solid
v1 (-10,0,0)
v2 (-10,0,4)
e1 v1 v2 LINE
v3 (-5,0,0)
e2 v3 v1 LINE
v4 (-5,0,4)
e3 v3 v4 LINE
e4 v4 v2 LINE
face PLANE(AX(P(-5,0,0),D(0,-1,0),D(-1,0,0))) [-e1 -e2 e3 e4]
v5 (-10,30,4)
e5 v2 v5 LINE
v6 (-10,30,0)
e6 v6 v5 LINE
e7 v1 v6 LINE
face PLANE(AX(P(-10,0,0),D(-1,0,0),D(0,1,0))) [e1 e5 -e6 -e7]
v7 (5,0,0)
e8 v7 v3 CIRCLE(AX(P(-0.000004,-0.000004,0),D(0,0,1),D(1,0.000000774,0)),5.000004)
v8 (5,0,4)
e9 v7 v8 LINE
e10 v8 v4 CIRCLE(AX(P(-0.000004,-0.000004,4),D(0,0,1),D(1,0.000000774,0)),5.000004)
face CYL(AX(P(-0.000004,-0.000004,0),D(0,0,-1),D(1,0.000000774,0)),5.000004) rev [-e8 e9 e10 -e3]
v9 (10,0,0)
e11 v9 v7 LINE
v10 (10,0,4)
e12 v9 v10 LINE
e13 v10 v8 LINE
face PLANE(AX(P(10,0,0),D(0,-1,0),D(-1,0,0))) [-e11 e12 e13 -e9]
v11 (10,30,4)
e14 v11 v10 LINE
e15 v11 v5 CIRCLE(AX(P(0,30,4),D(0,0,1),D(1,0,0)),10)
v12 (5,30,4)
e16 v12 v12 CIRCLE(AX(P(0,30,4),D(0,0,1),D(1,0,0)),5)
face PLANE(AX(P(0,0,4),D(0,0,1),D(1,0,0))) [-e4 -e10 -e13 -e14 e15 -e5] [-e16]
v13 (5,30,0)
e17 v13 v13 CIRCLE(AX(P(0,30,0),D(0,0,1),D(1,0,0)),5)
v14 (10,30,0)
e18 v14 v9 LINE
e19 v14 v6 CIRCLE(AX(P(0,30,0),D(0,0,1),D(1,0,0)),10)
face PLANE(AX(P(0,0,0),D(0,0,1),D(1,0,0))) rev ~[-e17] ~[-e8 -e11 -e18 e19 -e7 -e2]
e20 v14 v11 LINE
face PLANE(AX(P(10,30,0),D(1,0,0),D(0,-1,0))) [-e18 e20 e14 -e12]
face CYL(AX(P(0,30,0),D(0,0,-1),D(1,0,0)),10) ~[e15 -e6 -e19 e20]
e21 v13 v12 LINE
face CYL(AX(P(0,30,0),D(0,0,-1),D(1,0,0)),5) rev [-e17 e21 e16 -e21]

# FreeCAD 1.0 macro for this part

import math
import FreeCAD as App
import Part
import Sketcher
from FreeCAD import Vector
Q = App.Units.Quantity

doc = App.newDocument("Part")
body = doc.addObject("PartDesign::Body", "Body")

# Sketch on XY plane
sketch1 = body.newObject("Sketcher::SketchObject", "Sketch")
sketch1.AttachmentSupport = (doc.getObject("XY_Plane"), [""])
sketch1.MapMode = "FlatFace"
sketch1.addGeometry(Part.LineSegment(Vector(-10, 0, 0), Vector(-5, 0, 0)), False)
sketch1.addGeometry(Part.ArcOfCircle(Part.Circle(Vector(0, 0, 0), Vector(0, 0, 1), 5), math.radians(0), math.radians(180)), False)
sketch1.addGeometry(Part.LineSegment(Vector(5, 0, 0), Vector(10, 0, 0)), False)
sketch1.addGeometry(Part.LineSegment(Vector(10, 0, 0), Vector(10, 30, 0)), False)
sketch1.addGeometry(Part.ArcOfCircle(Part.Circle(Vector(0, 30, 0), Vector(0, 0, 1), 10), math.radians(0), math.radians(180)), False)
sketch1.addGeometry(Part.LineSegment(Vector(-10, 30, 0), Vector(-10, 0, 0)), False)
sketch1.addGeometry(Part.Circle(Vector(0, 30, 0), Vector(0, 0, 1), 5), False)
sketch1.addConstraint(Sketcher.Constraint("Coincident", 0, 2, 1, 2))
sketch1.addConstraint(Sketcher.Constraint("Coincident", 1, 1, 2, 1))
sketch1.addConstraint(Sketcher.Constraint("Coincident", 2, 2, 3, 1))
sketch1.addConstraint(Sketcher.Constraint("Tangent", 3, 2, 4, 1))
sketch1.addConstraint(Sketcher.Constraint("Tangent", 4, 2, 5, 1))
sketch1.addConstraint(Sketcher.Constraint("Coincident", 5, 2, 0, 1))
sketch1.addConstraint(Sketcher.Constraint("Horizontal", 0))
sketch1.addConstraint(Sketcher.Constraint("Horizontal", 2))
sketch1.addConstraint(Sketcher.Constraint("Vertical", 3))
sketch1.addConstraint(Sketcher.Constraint("Vertical", 5))
sketch1.addConstraint(Sketcher.Constraint("Coincident", 1, 3, -1, 1))
sketch1.addConstraint(Sketcher.Constraint("Coincident", 6, 3, 4, 3))
sketch1.addConstraint(Sketcher.Constraint("Equal", 1, 6))
sketch1.addConstraint(Sketcher.Constraint("Symmetric", 2, 2, 5, 2, -1, 1))
sketch1.addConstraint(Sketcher.Constraint("PointOnObject", 0, 2, -1))
sketch1.addConstraint(Sketcher.Constraint("Diameter", 6, Q("10 mm")))
sketch1.addConstraint(Sketcher.Constraint("Radius", 4, Q("10 mm")))
sketch1.addConstraint(Sketcher.Constraint("DistanceY", 3, 1, 3, 2, Q("30 mm")))
pad1 = body.newObject("PartDesign::Pad", "Pad")
pad1.Profile = sketch1
pad1.Length = 4

doc.recompute()
